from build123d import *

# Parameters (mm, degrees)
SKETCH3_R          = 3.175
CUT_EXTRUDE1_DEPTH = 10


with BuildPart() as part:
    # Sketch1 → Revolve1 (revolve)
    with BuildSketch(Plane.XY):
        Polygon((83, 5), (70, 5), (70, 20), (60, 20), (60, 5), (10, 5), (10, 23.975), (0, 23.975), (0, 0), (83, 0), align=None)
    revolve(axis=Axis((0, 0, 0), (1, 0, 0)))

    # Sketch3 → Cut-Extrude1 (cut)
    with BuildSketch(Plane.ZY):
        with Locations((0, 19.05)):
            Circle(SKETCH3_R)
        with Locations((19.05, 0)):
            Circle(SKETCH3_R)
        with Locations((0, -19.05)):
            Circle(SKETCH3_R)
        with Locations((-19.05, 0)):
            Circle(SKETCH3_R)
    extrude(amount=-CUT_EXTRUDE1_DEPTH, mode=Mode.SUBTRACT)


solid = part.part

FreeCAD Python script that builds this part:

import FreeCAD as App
import Part
import Sketcher
from FreeCAD import Vector

doc = App.newDocument("Part")
body = doc.addObject("PartDesign::Body", "Body")

sketch1 = body.newObject("Sketcher::SketchObject", "Sketch")
sketch1.AttachmentSupport = (doc.getObject("XY_Plane"), [""])
sketch1.MapMode = "FlatFace"
sketch1.addGeometry(Part.LineSegment(Vector(83, 5, 0), Vector(70, 5, 0)), False)
sketch1.addGeometry(Part.LineSegment(Vector(70, 5, 0), Vector(70, 20, 0)), False)
sketch1.addGeometry(Part.LineSegment(Vector(70, 20, 0), Vector(60, 20, 0)), False)
sketch1.addGeometry(Part.LineSegment(Vector(60, 20, 0), Vector(60, 5, 0)), False)
sketch1.addGeometry(Part.LineSegment(Vector(60, 5, 0), Vector(10, 5, 0)), False)
sketch1.addGeometry(Part.LineSegment(Vector(10, 5, 0), Vector(10, 24, 0)), False)
sketch1.addGeometry(Part.LineSegment(Vector(10, 24, 0), Vector(0, 24, 0)), False)
sketch1.addGeometry(Part.LineSegment(Vector(0, 24, 0), Vector(0, 0, 0)), False)
sketch1.addGeometry(Part.LineSegment(Vector(0, 0, 0), Vector(83, 0, 0)), False)
sketch1.addGeometry(Part.LineSegment(Vector(83, 0, 0), Vector(83, 5, 0)), False)
sketch1.addConstraint(Sketcher.Constraint("Coincident", 0, 2, 1, 1))
sketch1.addConstraint(Sketcher.Constraint("Coincident", 1, 2, 2, 1))
sketch1.addConstraint(Sketcher.Constraint("Coincident", 2, 2, 3, 1))
sketch1.addConstraint(Sketcher.Constraint("Coincident", 3, 2, 4, 1))
sketch1.addConstraint(Sketcher.Constraint("Coincident", 4, 2, 5, 1))
sketch1.addConstraint(Sketcher.Constraint("Coincident", 5, 2, 6, 1))
sketch1.addConstraint(Sketcher.Constraint("Coincident", 6, 2, 7, 1))
sketch1.addConstraint(Sketcher.Constraint("Coincident", 7, 2, 8, 1))
sketch1.addConstraint(Sketcher.Constraint("Coincident", 8, 2, 9, 1))
sketch1.addConstraint(Sketcher.Constraint("Coincident", 9, 2, 0, 1))
sketch1.addConstraint(Sketcher.Constraint("Horizontal", 0))
sketch1.addConstraint(Sketcher.Constraint("Vertical", 1))
sketch1.addConstraint(Sketcher.Constraint("Horizontal", 2))
sketch1.addConstraint(Sketcher.Constraint("Vertical", 3))
sketch1.addConstraint(Sketcher.Constraint("Horizontal", 4))
sketch1.addConstraint(Sketcher.Constraint("Vertical", 5))
sketch1.addConstraint(Sketcher.Constraint("Horizontal", 6))
sketch1.addConstraint(Sketcher.Constraint("Vertical", 7))
sketch1.addConstraint(Sketcher.Constraint("Horizontal", 8))
sketch1.addConstraint(Sketcher.Constraint("Vertical", 9))
sketch1.addConstraint(Sketcher.Constraint("Coincident", 7, 2, -1, 1))
sketch1.addConstraint(Sketcher.Constraint("Horizontal", 0, 2, 3, 2))
sketch1.addConstraint(Sketcher.Constraint("Equal", 2, 6))
sketch1.addConstraint(Sketcher.Constraint("DistanceX", 0, 2, 0, 1, 13.0))
sketch1.addConstraint(Sketcher.Constraint("DistanceX", 2, 2, 2, 1, 10.0))
sketch1.addConstraint(Sketcher.Constraint("DistanceX", 4, 2, 4, 1, 50.0))
sketch1.addConstraint(Sketcher.Constraint("DistanceY", 1, 1, 1, 2, 15.0))
sketch1.addConstraint(Sketcher.Constraint("DistanceY", 9, 1, 9, 2, 5.0))
sketch1.addConstraint(Sketcher.Constraint("DistanceY", 5, 1, 5, 2, 18.975))
revolution = body.newObject("PartDesign::Revolution", "Revolution")
revolution.Profile = sketch1
revolution.ReferenceAxis = (sketch1, ["H_Axis"])
revolution.Angle = 360

sketch2 = body.newObject("Sketcher::SketchObject", "Sketch001")
sketch2.AttachmentSupport = (doc.getObject("YZ_Plane"), [""])
sketch2.MapMode = "FlatFace"
sketch2.addGeometry(Part.Circle(Vector(19.1, 0, 0), Vector(0, 0, 1), 3.2), False)
sketch2.addGeometry(Part.Circle(Vector(0, 19.1, 0), Vector(0, 0, 1), 3.2), False)
sketch2.addGeometry(Part.Circle(Vector(-19.1, 0, 0), Vector(0, 0, 1), 3.2), False)
sketch2.addGeometry(Part.Circle(Vector(0, -19.1, 0), Vector(0, 0, 1), 3.2), False)
sketch2.addConstraint(Sketcher.Constraint("Equal", 0, 1))
sketch2.addConstraint(Sketcher.Constraint("Equal", 1, 2))
sketch2.addConstraint(Sketcher.Constraint("Equal", 2, 3))
sketch2.addConstraint(Sketcher.Constraint("Symmetric", 0, 3, 2, 3, -1, 1))
sketch2.addConstraint(Sketcher.Constraint("Symmetric", 1, 3, 3, 3, -1, 1))
sketch2.addConstraint(Sketcher.Constraint("PointOnObject", 0, 3, -1))
sketch2.addConstraint(Sketcher.Constraint("PointOnObject", 1, 3, -2))
sketch2.addConstraint(Sketcher.Constraint("Diameter", 0, 6.35))
sketch2.addConstraint(Sketcher.Constraint("DistanceX", 2, 3, 0, 3, 38.1))
sketch2.addConstraint(Sketcher.Constraint("DistanceY", 3, 3, 1, 3, 38.1))
pocket1 = body.newObject("PartDesign::Pocket", "Pocket")
pocket1.Profile = sketch2
pocket1.Length = 10
pocket1.Reversed = True

doc.recompute()
